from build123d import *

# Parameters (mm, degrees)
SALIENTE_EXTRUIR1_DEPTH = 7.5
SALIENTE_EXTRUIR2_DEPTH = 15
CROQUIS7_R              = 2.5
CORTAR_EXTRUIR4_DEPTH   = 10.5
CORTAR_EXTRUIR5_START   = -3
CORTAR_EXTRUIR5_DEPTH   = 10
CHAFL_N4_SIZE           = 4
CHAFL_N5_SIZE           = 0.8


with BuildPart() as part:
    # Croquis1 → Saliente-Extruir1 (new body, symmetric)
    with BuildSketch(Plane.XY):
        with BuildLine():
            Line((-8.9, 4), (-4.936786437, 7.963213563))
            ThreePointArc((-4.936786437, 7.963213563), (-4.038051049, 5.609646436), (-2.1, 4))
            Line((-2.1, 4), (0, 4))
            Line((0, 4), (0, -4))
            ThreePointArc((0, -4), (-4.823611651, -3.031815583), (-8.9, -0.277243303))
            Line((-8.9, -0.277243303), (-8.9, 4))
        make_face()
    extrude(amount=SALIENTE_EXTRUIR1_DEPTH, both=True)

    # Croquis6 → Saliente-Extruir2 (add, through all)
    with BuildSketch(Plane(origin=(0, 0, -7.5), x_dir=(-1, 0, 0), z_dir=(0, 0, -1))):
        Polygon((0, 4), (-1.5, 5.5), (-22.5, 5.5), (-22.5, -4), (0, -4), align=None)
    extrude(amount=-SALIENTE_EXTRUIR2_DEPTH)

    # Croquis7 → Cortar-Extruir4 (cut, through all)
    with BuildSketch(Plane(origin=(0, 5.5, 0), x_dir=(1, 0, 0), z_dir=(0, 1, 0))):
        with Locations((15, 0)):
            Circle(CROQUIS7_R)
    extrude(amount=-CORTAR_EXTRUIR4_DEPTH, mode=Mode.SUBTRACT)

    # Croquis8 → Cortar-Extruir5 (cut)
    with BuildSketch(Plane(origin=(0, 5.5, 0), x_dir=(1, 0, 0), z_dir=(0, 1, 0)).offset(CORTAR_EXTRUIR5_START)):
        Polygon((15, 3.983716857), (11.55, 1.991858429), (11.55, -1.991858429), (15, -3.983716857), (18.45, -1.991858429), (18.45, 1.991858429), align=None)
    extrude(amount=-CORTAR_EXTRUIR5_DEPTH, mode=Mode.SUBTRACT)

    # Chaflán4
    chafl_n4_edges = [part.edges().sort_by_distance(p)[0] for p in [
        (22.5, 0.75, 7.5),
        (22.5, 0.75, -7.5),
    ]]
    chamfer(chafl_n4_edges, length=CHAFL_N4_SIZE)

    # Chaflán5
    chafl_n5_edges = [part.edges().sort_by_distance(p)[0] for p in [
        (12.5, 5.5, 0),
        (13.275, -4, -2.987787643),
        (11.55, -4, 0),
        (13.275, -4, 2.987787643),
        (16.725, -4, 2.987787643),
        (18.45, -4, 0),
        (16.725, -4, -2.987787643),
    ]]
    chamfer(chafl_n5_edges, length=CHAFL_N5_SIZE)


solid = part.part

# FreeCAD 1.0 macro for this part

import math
import FreeCAD as App
import Part
import Sketcher

V = App.Vector
Q = App.Units.Quantity


def edges_at(feature, points):
    """Names of the edges that pass closest to the given points."""
    edges = feature.Shape.Edges
    near = lambda p: min(range(len(edges)), key=lambda i: edges[i].distToShape(Part.Vertex(*p))[0])
    return sorted({f"Edge{near(p) + 1}" for p in points})


def add_polygon(sketch, points):
    """Adds a closed chain of lines whose ends are joined by coincident constraints."""
    first, n = sketch.GeometryCount, len(points)
    for a, b in zip(points, points[1:] + points[:1]):
        sketch.addGeometry(Part.LineSegment(App.Vector(*a, 0), App.Vector(*b, 0)), False)
    for i in range(n):
        sketch.addConstraint(Sketcher.Constraint("Coincident", first + i, 2, first + (i + 1) % n, 1))

doc = App.newDocument("Part")
body = doc.addObject("PartDesign::Body", "Body")

sketch1 = body.newObject("Sketcher::SketchObject", "Sketch")
sketch1.AttachmentSupport = (doc.getObject("XY_Plane"), [""])
sketch1.MapMode = "FlatFace"
sketch1.addGeometry([
    Part.LineSegment(V(-4.936786, 7.963214, 0), V(-8.9, 4, 0)),
    Part.LineSegment(V(-8.9, 4, 0), V(-8.9, -0.277243, 0)),
    Part.ArcOfCircle(Part.Circle(V(0, 8.5, 0), V(0, 0, 1), 12.5), math.radians(-135.397875), math.radians(-90)),
    Part.LineSegment(V(0, -4, 0), V(0, 4, 0)),
    Part.LineSegment(V(0, 4, 0), V(-2.1, 4, 0)),
    Part.ArcOfCircle(Part.Circle(V(0, 8.5, 0), V(0, 0, 1), 4.965884), math.radians(-173.794496), math.radians(-115.016893)),
], False)
sketch1.addConstraint([
    Sketcher.Constraint("Coincident", 0, 2, 1, 1),
    Sketcher.Constraint("Coincident", 1, 2, 2, 1),
    Sketcher.Constraint("Coincident", 2, 2, 3, 1),
    Sketcher.Constraint("Coincident", 3, 2, 4, 1),
    Sketcher.Constraint("Coincident", 4, 2, 5, 2),
    Sketcher.Constraint("Coincident", 5, 1, 0, 1),
    Sketcher.Constraint("Vertical", 1),
    Sketcher.Constraint("Vertical", 3),
    Sketcher.Constraint("Horizontal", 4),
    Sketcher.Constraint("Coincident", 5, 3, 2, 3),
    Sketcher.Constraint("Symmetric", 2, 2, 3, 2, -1, 1),
    Sketcher.Constraint("PointOnObject", 2, 3, -2),
    Sketcher.Constraint("Horizontal", 0, 2, 3, 2),
    Sketcher.Constraint("Radius", 2, Q("12.5 mm")),
    Sketcher.Constraint("DistanceY", 3, 1, 3, 2, Q("8 mm")),
    Sketcher.Constraint("Angle", 0, Q("-135 deg")),
    Sketcher.Constraint("DistanceX", 4, 2, 4, 1, Q("2.1 mm")),
    Sketcher.Constraint("DistanceX", 0, 2, -1, 1, Q("8.9 mm")),
])
pad1 = body.newObject("PartDesign::Pad", "Pad")
pad1.Profile = sketch1
pad1.Length = 15
pad1.Midplane = True

sketch2 = body.newObject("Sketcher::SketchObject", "Sketch001")
sketch2.AttachmentSupport = (doc.getObject("XY_Plane"), [""])
sketch2.MapMode = "FlatFace"
sketch2.AttachmentOffset = App.Placement(V(0, 0, -7.5), App.Rotation())
add_polygon(sketch2, [(0, 4), (1.5, 5.5), (22.5, 5.5), (22.5, -4), (0, -4)])
sketch2.addConstraint([
    Sketcher.Constraint("Horizontal", 1),
    Sketcher.Constraint("Vertical", 2),
    Sketcher.Constraint("Horizontal", 3),
    Sketcher.Constraint("Vertical", 4),
    Sketcher.Constraint("Symmetric", 3, 2, 4, 2, -1, 1),
    Sketcher.Constraint("DistanceX", 1, 1, 1, 2, Q("21 mm")),
    Sketcher.Constraint("DistanceY", 4, 1, 4, 2, Q("8 mm")),
    Sketcher.Constraint("Angle", 0, Q("45 deg")),
    Sketcher.Constraint("DistanceX", 3, 2, 3, 1, Q("22.5 mm")),
])
pad2 = body.newObject("PartDesign::Pad", "Pad001")
pad2.Profile = sketch2
pad2.Length = 15

sketch3 = body.newObject("Sketcher::SketchObject", "Sketch002")
sketch3.AttachmentSupport = (doc.getObject("XZ_Plane"), [""])
sketch3.MapMode = "FlatFace"
sketch3.AttachmentOffset = App.Placement(V(0, 0, -5.5), App.Rotation())
sketch3.addGeometry(Part.Circle(V(15, 0, 0), V(0, 0, 1), 2.5), False)
sketch3.addConstraint([
    Sketcher.Constraint("PointOnObject", 0, 3, -1),
    Sketcher.Constraint("Diameter", 0, Q("5 mm")),
    Sketcher.Constraint("DistanceX", -1, 1, 0, 3, Q("15 mm")),
])
pocket1 = body.newObject("PartDesign::Pocket", "Pocket")
pocket1.Profile = sketch3
pocket1.Type = "ThroughAll"
pocket1.Reversed = True

sketch4 = body.newObject("Sketcher::SketchObject", "Sketch003")
sketch4.AttachmentSupport = (doc.getObject("XZ_Plane"), [""])
sketch4.MapMode = "FlatFace"
sketch4.AttachmentOffset = App.Placement(V(0, 0, -2.5), App.Rotation())
add_polygon(sketch4, [(15, -3.983717), (11.55, -1.991858), (11.55, 1.991858), (15, 3.983717), (18.45, 1.991858), (18.45, -1.991858)])
sketch4.addConstraint([
    Sketcher.Constraint("Vertical", 1),
    Sketcher.Constraint("Vertical", 4),
    Sketcher.Constraint("Symmetric", 2, 2, 5, 2, -1),
    Sketcher.Constraint("Parallel", 0, 3),
    Sketcher.Constraint("Parallel", 2, 5),
    Sketcher.Constraint("Horizontal", 1, 2, 3, 2),
    Sketcher.Constraint("Horizontal", 0, 2, 4, 2),
    Sketcher.Constraint("Angle", 0, Q("150 deg")),
    Sketcher.Constraint("DistanceX", -1, 1, 2, 2, Q("15 mm")),
    Sketcher.Constraint("DistanceX", 1, 2, 3, 2, Q("6.9 mm")),
    Sketcher.Constraint("DistanceY", 1, 1, 1, 2, Q("3.983717 mm")),
])
pocket2 = body.newObject("PartDesign::Pocket", "Pocket001")
pocket2.Profile = sketch4
pocket2.Length = 10
pocket2.Reversed = True
doc.recompute()

chamfer = body.newObject("PartDesign::Chamfer", "Chamfer")
chamfer.Base = (pocket2, edges_at(pocket2, [(22.5, 0.75, 7.5), (22.5, 0.75, -7.5)]))
chamfer.Size = 4
doc.recompute()

chamfer2 = body.newObject("PartDesign::Chamfer", "Chamfer001")
chamfer2.Base = (chamfer, edges_at(chamfer, [
    (12.5, 5.5, 0),
    (13.275, -4, -2.988),
    (11.55, -4, 0),
    (13.275, -4, 2.988),
    (16.725, -4, 2.988),
    (18.45, -4, 0),
    (16.725, -4, -2.988),
]))
chamfer2.Size = 0.8

doc.recompute()
